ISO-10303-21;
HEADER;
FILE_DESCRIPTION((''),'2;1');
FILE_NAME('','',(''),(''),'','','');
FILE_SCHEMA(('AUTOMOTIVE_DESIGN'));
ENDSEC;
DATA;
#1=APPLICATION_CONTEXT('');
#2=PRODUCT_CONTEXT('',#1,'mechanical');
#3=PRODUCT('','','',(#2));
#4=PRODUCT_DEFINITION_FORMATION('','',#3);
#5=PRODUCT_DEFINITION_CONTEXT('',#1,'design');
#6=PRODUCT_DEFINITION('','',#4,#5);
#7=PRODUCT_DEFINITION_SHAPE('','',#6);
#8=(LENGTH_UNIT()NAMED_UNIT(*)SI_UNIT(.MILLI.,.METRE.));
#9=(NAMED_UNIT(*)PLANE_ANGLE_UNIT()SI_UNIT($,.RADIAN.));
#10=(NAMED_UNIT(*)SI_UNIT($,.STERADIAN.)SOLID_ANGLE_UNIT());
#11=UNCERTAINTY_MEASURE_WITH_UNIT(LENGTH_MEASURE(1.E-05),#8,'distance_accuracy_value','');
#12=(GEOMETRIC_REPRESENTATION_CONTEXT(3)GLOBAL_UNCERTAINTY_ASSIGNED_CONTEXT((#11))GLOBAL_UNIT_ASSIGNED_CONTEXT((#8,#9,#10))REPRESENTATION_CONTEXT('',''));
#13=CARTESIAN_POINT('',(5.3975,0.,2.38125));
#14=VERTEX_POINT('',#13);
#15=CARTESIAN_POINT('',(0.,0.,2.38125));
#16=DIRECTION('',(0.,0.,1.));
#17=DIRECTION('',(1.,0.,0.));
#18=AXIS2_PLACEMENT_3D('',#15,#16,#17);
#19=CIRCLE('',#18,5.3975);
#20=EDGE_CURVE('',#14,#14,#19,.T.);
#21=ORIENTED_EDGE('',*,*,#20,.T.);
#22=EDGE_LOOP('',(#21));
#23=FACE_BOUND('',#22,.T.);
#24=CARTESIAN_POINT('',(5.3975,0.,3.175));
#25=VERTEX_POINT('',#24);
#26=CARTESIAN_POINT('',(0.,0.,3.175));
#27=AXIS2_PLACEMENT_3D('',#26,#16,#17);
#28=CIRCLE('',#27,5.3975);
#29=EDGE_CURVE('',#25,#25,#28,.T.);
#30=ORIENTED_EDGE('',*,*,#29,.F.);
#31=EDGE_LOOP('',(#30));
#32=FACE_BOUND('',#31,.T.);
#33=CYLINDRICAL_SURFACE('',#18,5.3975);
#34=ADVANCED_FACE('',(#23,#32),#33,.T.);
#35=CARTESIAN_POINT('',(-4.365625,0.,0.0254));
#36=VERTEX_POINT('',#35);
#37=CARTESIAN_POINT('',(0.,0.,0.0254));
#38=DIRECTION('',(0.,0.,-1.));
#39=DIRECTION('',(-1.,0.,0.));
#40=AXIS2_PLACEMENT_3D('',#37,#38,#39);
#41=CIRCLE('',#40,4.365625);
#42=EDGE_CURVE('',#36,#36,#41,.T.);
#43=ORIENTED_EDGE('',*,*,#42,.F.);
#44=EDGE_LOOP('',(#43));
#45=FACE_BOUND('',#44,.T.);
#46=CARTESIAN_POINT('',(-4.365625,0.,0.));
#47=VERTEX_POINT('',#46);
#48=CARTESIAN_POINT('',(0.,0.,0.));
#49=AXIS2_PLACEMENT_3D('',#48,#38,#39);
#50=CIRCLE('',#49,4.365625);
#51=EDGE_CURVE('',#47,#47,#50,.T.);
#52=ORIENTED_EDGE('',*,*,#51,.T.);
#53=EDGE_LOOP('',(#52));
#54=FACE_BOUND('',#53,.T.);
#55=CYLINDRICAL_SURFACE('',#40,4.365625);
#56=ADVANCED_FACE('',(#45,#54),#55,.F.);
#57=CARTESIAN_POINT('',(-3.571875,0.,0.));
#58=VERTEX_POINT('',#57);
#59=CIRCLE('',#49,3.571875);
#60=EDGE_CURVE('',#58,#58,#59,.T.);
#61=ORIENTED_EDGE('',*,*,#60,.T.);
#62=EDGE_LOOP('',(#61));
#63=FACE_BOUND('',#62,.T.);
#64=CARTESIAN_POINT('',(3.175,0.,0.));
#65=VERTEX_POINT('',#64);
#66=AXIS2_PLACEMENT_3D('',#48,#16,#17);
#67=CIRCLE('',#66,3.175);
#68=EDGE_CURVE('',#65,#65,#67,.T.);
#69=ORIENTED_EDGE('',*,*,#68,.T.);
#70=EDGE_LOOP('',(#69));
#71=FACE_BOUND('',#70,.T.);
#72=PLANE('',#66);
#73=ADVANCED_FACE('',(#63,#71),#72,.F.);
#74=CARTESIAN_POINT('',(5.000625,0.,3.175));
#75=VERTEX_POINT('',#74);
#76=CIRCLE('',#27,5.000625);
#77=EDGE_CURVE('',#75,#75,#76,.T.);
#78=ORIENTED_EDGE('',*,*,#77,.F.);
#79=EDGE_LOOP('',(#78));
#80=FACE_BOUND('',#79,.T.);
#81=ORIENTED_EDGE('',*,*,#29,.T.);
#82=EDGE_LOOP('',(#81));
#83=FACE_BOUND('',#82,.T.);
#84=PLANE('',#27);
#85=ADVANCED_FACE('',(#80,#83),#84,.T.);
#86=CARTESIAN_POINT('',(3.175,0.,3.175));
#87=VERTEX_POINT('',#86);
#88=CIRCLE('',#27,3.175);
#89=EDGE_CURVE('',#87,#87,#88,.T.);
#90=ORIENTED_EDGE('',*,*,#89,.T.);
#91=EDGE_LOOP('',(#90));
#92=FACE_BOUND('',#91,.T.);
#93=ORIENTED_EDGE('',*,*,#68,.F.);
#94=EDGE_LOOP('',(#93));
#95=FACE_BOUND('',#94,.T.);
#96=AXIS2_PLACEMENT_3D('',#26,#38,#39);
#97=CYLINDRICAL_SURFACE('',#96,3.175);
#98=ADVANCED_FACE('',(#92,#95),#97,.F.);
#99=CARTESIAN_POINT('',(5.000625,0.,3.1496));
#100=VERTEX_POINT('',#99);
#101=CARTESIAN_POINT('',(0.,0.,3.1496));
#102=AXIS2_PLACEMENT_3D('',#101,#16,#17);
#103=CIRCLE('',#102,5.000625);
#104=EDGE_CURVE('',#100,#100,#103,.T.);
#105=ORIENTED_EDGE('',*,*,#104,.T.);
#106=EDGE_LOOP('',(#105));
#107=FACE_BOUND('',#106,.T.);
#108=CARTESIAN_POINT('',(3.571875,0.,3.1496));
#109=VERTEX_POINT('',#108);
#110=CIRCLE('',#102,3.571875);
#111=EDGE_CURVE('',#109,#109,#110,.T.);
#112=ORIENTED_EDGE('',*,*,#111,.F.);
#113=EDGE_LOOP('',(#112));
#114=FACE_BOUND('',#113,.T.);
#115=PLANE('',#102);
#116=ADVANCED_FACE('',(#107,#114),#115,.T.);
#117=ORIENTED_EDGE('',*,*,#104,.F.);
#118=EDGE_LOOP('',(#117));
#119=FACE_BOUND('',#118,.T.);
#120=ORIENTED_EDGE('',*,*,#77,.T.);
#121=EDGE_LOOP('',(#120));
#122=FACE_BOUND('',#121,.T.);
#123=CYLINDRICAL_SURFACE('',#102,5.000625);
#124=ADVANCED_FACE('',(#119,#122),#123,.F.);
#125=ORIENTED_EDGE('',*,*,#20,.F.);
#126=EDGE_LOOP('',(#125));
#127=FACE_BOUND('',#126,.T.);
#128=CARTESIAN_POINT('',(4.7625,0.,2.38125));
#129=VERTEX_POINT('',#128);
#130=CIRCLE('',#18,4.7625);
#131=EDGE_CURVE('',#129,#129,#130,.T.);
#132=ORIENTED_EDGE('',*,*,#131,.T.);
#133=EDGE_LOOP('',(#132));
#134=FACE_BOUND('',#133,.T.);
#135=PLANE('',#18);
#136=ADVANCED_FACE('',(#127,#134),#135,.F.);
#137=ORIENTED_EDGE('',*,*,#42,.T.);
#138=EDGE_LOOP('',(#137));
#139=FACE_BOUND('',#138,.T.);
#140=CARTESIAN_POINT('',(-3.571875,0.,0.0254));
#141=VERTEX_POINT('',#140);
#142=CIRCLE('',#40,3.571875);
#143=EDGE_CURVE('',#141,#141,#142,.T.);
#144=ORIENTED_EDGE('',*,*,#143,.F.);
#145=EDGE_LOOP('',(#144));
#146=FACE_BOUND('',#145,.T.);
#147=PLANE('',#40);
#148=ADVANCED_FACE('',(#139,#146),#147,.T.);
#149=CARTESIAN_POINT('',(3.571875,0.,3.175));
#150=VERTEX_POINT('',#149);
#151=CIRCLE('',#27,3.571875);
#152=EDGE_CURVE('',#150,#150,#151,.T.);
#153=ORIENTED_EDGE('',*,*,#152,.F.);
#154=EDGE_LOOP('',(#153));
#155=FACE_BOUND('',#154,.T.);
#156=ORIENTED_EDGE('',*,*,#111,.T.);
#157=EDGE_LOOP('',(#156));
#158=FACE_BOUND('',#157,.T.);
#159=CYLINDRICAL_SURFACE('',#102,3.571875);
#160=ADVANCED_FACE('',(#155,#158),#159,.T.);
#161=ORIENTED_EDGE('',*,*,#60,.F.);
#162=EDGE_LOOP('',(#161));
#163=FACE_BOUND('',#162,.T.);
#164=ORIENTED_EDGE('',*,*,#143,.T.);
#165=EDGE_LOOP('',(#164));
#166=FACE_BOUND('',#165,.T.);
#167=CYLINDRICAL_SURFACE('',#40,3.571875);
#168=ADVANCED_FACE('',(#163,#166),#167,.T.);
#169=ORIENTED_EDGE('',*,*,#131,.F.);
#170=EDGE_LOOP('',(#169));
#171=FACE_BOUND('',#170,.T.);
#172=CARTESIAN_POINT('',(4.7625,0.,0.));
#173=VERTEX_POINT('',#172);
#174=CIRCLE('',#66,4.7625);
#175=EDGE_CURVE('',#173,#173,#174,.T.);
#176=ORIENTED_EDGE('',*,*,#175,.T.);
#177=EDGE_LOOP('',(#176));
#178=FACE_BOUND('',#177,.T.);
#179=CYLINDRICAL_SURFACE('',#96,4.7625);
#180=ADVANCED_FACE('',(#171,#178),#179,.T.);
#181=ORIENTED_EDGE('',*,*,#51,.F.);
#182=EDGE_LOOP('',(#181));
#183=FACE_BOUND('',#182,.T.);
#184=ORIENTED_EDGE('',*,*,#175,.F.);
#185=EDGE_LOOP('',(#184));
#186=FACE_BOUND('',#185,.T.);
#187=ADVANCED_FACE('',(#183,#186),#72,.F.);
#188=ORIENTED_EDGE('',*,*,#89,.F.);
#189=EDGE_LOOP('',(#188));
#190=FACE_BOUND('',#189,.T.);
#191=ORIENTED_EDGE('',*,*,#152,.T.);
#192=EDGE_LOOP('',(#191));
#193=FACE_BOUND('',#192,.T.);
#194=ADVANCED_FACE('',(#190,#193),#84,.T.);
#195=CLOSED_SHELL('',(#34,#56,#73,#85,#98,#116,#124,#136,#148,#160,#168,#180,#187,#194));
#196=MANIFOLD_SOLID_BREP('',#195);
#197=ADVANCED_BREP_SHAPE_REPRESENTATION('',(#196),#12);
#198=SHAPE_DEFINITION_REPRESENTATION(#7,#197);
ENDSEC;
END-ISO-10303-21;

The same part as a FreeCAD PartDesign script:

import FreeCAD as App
import Part
import Sketcher
Q = App.Units.Quantity

doc = App.newDocument("Part")
params = doc.addObject("Spreadsheet::Sheet", "Params")
for row, (alias, value) in enumerate([
    ("sketch1_diameter", "0.25 in"),
    ("sketch1_diameter2", "0.375 in"),
    ("pad1_length", "0.125 in"),
    ("sketch2_diameter", "0.425 in"),
    ("sketch2_diameter2", "0.375 in"),
    ("pad2_length", "0.03125 in"),
    ("sketch3_diameter", "0.28125 in"),
    ("pocket1_length", "0.001 in"),
    ("sketch4_diameter", "0.34375 in"),
    ("sketch4_diameter2", "0.28125 in"),
    ("pocket2_length", "0.001 in"),
], start=1):
    params.set(f"A{row}", alias)
    params.set(f"B{row}", "=" + value)
    params.setAlias(f"B{row}", alias)

body = doc.addObject("PartDesign::Body", "Body")

# Sketch on XY plane
sketch1 = doc.addObject("Sketcher::SketchObject", "Sketch")
body.addObject(sketch1)
sketch1.AttachmentSupport = (doc.XY_Plane, [""])
sketch1.MapMode = "FlatFace"
sketch1.addGeometry([
    Part.Circle(App.Vector(0, 0, 0), App.Vector(0, 0, 1), 4.8),
    Part.Circle(App.Vector(0, 0, 0), App.Vector(0, 0, 1), 3.2),
], False)
sketch1.addConstraint([
    Sketcher.Constraint("Coincident", 0, 3, -1, 1),
    Sketcher.Constraint("Coincident", 1, 3, -1, 1),
    Sketcher.Constraint("Diameter", 1, Q("0.25 in")),
    Sketcher.Constraint("Diameter", 0, Q("0.375 in")),
])
sketch1.setExpression("Constraints[2]", "Params.sketch1_diameter")
sketch1.setExpression("Constraints[3]", "Params.sketch1_diameter2")
pad1 = doc.addObject("PartDesign::Pad", "Pad")
body.addObject(pad1)
pad1.Profile = sketch1
pad1.setExpression("Length", "Params.pad1_length")

# Sketch on XY plane
sketch2 = doc.addObject("Sketcher::SketchObject", "Sketch001")
body.addObject(sketch2)
sketch2.AttachmentSupport = (doc.XY_Plane, [""])
sketch2.MapMode = "FlatFace"
sketch2.AttachmentOffset = App.Placement(App.Vector(0, 0, 0.09375 * 25.4), App.Rotation())
sketch2.addGeometry([
    Part.Circle(App.Vector(0, 0, 0), App.Vector(0, 0, 1), 5.4),
    Part.Circle(App.Vector(0, 0, 0), App.Vector(0, 0, 1), 4.8),
], False)
sketch2.addConstraint([
    Sketcher.Constraint("Coincident", 0, 3, -1, 1),
    Sketcher.Constraint("Coincident", 1, 3, -1, 1),
    Sketcher.Constraint("Diameter", 0, Q("0.425 in")),
    Sketcher.Constraint("Diameter", 1, Q("0.375 in")),
])
sketch2.setExpression("Constraints[2]", "Params.sketch2_diameter")
sketch2.setExpression("Constraints[3]", "Params.sketch2_diameter2")
pad2 = doc.addObject("PartDesign::Pad", "Pad001")
body.addObject(pad2)
pad2.Profile = sketch2
pad2.setExpression("Length", "Params.pad2_length")

# Sketch on XY plane
sketch3 = doc.addObject("Sketcher::SketchObject", "Sketch002")
body.addObject(sketch3)
sketch3.AttachmentSupport = (doc.XY_Plane, [""])
sketch3.MapMode = "FlatFace"
sketch3.AttachmentOffset = App.Placement(App.Vector(0, 0, 0.125 * 25.4), App.Rotation())
sketch3.addGeometry([
    Part.Circle(App.Vector(0, 0, 0), App.Vector(0, 0, 1), 5),
    Part.Circle(App.Vector(0, 0, 0), App.Vector(0, 0, 1), 3.6),
], False)
sketch3.addConstraint([
    Sketcher.Constraint("Coincident", 0, 3, -1, 1),
    Sketcher.Constraint("Coincident", 1, 3, -1, 1),
    Sketcher.Constraint("Diameter", 1, Q("0.28125 in")),
    Sketcher.Constraint("Diameter", 0, 10.00125),
])
sketch3.setExpression("Constraints[2]", "Params.sketch3_diameter")
pocket1 = doc.addObject("PartDesign::Pocket", "Pocket")
body.addObject(pocket1)
pocket1.Profile = sketch3
pocket1.setExpression("Length", "Params.pocket1_length")

# Sketch on XY plane
sketch4 = doc.addObject("Sketcher::SketchObject", "Sketch003")
body.addObject(sketch4)
sketch4.AttachmentSupport = (doc.XY_Plane, [""])
sketch4.MapMode = "FlatFace"
sketch4.AttachmentOffset = App.Placement(App.Vector(0, 0, 0.001 * 25.4), App.Rotation())
sketch4.addGeometry([
    Part.Circle(App.Vector(0, 0, 0), App.Vector(0, 0, 1), 4.4),
    Part.Circle(App.Vector(0, 0, 0), App.Vector(0, 0, 1), 3.6),
], False)
sketch4.addConstraint([
    Sketcher.Constraint("Coincident", 0, 3, -1, 1),
    Sketcher.Constraint("Coincident", 1, 3, -1, 1),
    Sketcher.Constraint("Diameter", 0, Q("0.34375 in")),
    Sketcher.Constraint("Diameter", 1, Q("0.28125 in")),
])
sketch4.setExpression("Constraints[2]", "Params.sketch4_diameter")
sketch4.setExpression("Constraints[3]", "Params.sketch4_diameter2")
pocket2 = doc.addObject("PartDesign::Pocket", "Pocket001")
body.addObject(pocket2)
pocket2.Profile = sketch4
pocket2.setExpression("Length", "Params.pocket2_length")

doc.recompute()
